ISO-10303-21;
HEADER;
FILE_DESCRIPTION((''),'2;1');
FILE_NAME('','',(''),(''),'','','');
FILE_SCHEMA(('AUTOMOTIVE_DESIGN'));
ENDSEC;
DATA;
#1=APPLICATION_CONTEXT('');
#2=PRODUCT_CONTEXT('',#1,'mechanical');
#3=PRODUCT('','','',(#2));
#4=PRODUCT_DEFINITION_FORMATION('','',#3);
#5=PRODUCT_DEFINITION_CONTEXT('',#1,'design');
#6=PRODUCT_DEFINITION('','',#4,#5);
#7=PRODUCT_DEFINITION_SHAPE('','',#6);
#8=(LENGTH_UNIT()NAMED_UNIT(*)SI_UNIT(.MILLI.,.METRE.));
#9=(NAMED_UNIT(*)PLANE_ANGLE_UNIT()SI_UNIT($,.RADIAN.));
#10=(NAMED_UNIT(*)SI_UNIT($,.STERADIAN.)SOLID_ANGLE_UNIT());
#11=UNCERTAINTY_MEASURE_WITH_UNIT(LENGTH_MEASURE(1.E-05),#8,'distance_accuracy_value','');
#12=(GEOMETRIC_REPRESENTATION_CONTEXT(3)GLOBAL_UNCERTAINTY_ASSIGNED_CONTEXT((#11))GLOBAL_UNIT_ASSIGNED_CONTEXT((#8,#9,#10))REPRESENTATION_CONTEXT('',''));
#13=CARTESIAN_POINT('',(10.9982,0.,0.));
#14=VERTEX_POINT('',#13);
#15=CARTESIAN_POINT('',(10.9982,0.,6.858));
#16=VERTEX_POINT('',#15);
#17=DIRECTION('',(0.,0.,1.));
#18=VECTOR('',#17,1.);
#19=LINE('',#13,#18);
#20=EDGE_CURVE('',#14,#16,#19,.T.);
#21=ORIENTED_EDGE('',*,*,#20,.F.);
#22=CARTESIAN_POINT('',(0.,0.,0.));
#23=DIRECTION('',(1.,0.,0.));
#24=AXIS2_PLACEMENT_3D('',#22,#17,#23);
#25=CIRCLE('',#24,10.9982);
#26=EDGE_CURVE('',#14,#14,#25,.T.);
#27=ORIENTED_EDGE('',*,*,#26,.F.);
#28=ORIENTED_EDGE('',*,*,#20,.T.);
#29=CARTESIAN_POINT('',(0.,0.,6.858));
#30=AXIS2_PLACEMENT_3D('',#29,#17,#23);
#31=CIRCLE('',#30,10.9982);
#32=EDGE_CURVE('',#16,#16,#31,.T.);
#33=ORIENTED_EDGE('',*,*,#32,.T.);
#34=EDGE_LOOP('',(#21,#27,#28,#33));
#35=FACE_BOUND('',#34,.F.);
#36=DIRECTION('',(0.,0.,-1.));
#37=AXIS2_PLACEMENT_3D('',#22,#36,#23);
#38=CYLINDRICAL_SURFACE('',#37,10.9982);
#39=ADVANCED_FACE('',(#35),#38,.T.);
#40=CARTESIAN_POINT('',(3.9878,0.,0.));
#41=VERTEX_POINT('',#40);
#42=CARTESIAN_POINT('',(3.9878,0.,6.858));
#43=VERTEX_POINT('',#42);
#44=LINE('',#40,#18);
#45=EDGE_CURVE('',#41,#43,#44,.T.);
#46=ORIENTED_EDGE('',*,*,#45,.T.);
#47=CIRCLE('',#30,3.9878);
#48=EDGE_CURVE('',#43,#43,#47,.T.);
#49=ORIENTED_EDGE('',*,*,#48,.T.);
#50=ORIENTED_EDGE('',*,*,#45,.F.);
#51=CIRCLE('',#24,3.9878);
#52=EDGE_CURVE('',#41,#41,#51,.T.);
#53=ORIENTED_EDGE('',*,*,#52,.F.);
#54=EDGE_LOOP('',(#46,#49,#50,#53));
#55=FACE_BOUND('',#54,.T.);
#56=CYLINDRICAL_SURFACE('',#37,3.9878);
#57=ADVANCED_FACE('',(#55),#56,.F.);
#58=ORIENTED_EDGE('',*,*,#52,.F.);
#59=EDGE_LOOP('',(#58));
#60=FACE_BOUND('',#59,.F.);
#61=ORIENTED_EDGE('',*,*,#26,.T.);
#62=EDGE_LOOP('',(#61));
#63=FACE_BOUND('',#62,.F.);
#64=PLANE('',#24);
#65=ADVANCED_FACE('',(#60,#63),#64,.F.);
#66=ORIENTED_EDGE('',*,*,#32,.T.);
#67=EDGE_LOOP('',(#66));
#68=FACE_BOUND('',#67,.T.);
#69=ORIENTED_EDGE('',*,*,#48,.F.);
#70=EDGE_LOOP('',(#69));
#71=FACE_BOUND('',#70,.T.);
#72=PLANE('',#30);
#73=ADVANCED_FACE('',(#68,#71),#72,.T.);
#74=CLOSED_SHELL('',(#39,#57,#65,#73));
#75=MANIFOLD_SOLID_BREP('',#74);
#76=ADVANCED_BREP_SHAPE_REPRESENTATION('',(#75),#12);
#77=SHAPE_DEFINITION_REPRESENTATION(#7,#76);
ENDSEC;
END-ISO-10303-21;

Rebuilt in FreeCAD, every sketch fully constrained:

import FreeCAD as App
import Part
import Sketcher
Q = App.Units.Quantity

doc = App.newDocument("Part")
body = doc.addObject("PartDesign::Body", "Body")

# Sketch on XY plane
sketch1 = body.newObject("Sketcher::SketchObject", "Sketch")
sketch1.AttachmentSupport = (doc.getObject("XY_Plane"), [""])
sketch1.MapMode = "FlatFace"
sketch1.addGeometry(Part.Circle(App.Vector(0, 0, 0), App.Vector(0, 0, 1), 10.9982), False)
sketch1.addGeometry(Part.Circle(App.Vector(0, 0, 0), App.Vector(0, 0, 1), 3.9878), False)
sketch1.addConstraint(Sketcher.Constraint("Coincident", 0, 3, -1, 1))
sketch1.addConstraint(Sketcher.Constraint("Coincident", 1, 3, -1, 1))
sketch1.addConstraint(Sketcher.Constraint("Diameter", 0, Q("0.866 in")))
sketch1.addConstraint(Sketcher.Constraint("Diameter", 1, Q("0.314 in")))
pad1 = body.newObject("PartDesign::Pad", "Pad")
pad1.Profile = sketch1
pad1.Length = Q("0.27 in")

doc.recompute()
